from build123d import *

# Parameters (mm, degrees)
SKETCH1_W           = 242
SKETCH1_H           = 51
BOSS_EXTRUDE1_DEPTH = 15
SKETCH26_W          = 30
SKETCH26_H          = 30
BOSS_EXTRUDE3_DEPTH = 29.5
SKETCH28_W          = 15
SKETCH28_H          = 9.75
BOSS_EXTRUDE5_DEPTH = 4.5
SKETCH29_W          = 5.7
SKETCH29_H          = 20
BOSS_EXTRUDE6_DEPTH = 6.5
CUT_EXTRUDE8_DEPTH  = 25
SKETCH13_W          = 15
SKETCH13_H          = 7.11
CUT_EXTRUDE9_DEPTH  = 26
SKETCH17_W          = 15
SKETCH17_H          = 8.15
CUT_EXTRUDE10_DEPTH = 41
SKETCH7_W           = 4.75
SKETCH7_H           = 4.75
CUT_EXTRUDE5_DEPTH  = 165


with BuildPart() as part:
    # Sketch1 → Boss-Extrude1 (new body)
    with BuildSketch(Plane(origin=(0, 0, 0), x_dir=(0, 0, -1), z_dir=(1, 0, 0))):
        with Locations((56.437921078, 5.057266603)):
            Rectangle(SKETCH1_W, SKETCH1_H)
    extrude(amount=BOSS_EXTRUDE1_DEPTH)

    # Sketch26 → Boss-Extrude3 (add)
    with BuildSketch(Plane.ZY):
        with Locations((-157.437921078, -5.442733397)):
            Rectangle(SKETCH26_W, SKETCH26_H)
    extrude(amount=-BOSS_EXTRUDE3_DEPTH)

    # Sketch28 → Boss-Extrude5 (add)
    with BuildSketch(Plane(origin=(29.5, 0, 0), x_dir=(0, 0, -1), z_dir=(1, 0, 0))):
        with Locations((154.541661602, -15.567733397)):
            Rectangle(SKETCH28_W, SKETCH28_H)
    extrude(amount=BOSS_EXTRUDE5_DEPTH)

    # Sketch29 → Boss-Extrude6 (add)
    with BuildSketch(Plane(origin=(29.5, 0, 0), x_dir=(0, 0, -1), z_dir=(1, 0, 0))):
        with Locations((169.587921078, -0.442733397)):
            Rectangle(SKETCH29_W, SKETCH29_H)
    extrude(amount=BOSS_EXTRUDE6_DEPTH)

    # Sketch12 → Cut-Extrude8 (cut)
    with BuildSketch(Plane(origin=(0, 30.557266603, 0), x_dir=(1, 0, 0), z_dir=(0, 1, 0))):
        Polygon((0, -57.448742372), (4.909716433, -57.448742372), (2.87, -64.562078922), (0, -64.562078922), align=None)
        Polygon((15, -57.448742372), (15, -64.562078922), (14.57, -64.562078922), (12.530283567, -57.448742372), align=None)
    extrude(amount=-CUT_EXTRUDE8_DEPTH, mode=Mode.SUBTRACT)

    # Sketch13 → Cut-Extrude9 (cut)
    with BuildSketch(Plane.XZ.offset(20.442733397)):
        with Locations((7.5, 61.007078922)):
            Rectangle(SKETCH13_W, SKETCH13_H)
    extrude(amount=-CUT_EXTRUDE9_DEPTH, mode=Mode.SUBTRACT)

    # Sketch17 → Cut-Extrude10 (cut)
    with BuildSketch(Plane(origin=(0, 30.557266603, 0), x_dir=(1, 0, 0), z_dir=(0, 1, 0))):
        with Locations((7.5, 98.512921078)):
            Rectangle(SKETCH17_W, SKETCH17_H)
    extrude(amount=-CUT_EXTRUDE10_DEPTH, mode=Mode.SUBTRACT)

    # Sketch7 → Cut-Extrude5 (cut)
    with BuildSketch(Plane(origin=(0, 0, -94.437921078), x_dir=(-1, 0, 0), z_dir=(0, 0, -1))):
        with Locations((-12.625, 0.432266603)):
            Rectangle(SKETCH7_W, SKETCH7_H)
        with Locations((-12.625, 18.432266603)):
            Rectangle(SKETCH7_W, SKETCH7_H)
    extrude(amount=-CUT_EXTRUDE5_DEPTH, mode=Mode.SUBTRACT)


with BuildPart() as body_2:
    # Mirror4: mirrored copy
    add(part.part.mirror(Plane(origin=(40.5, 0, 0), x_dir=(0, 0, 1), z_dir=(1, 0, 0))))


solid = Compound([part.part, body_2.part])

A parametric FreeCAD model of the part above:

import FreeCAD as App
import Part
import Sketcher
from FreeCAD import Vector
Q = App.Units.Quantity


def add_polygon(sketch, points):
    """Adds a closed chain of lines whose ends are joined by coincident constraints."""
    first, n = sketch.GeometryCount, len(points)
    for a, b in zip(points, points[1:] + points[:1]):
        sketch.addGeometry(Part.LineSegment(App.Vector(*a, 0), App.Vector(*b, 0)), False)
    for i in range(n):
        sketch.addConstraint(Sketcher.Constraint("Coincident", first + i, 2, first + (i + 1) % n, 1))

doc = App.newDocument("Part")
body = doc.addObject("PartDesign::Body", "Body")

# Sketch on YZ plane
sketch1 = body.newObject("Sketcher::SketchObject", "Sketch")
sketch1.AttachmentSupport = (doc.getObject("YZ_Plane"), [""])
sketch1.MapMode = "FlatFace"
add_polygon(sketch1, [(31, 65), (-20, 65), (-20, -177), (31, -177)])  # lines 0-3
sketch1.addConstraint([
    Sketcher.Constraint("Horizontal", 0),
    Sketcher.Constraint("Vertical", 1),
    Sketcher.Constraint("Horizontal", 2),
    Sketcher.Constraint("Vertical", 3),
    Sketcher.Constraint("DistanceX", 0, 2, 0, 1, Q("51 mm")),
    Sketcher.Constraint("DistanceY", 1, 2, 1, 1, Q("242 mm")),
    Sketcher.Constraint("DistanceY", -1, 1, 0, 2, Q("64.562079 mm")),
    Sketcher.Constraint("DistanceX", 0, 2, -1, 1, Q("20.442733 mm")),
])
pad1 = body.newObject("PartDesign::Pad", "Pad")
pad1.Profile = sketch1
pad1.Length = 15

# Sketch on YZ plane
sketch2 = body.newObject("Sketcher::SketchObject", "Sketch001")
sketch2.AttachmentSupport = (doc.getObject("YZ_Plane"), [""])
sketch2.MapMode = "FlatFace"
add_polygon(sketch2, [(10, -172), (-20, -172), (-20, -142), (10, -142)])  # lines 0-3
sketch2.addConstraint([
    Sketcher.Constraint("Horizontal", 0),
    Sketcher.Constraint("Vertical", 1),
    Sketcher.Constraint("Horizontal", 2),
    Sketcher.Constraint("Vertical", 3),
    Sketcher.Constraint("Equal", 2, 1),
    Sketcher.Constraint("DistanceX", 0, 2, 0, 1, Q("30 mm")),
    Sketcher.Constraint("DistanceY", 0, 2, -1, 1, Q("172.437921 mm")),
    Sketcher.Constraint("DistanceX", 0, 2, -1, 1, Q("20.442733 mm")),
])
pad2 = body.newObject("PartDesign::Pad", "Pad001")
pad2.Profile = sketch2
pad2.Length = 29.5

# Sketch on YZ plane
sketch3 = body.newObject("Sketcher::SketchObject", "Sketch002")
sketch3.AttachmentSupport = (doc.getObject("YZ_Plane"), [""])
sketch3.MapMode = "FlatFace"
sketch3.AttachmentOffset = App.Placement(Vector(0, 0, 29.5), App.Rotation())
add_polygon(sketch3, [(-11, -147), (-20, -147), (-20, -162), (-11, -162)])  # lines 0-3
sketch3.addConstraint([
    Sketcher.Constraint("Horizontal", 0),
    Sketcher.Constraint("Vertical", 1),
    Sketcher.Constraint("Horizontal", 2),
    Sketcher.Constraint("Vertical", 3),
    Sketcher.Constraint("DistanceY", 1, 2, 1, 1, Q("15 mm")),
    Sketcher.Constraint("DistanceX", 0, 2, 0, 1, Q("9.75 mm")),
    Sketcher.Constraint("DistanceY", 0, 2, -1, 1, Q("147.041662 mm")),
    Sketcher.Constraint("DistanceX", 0, 2, -1, 1, Q("20.442733 mm")),
])
pad3 = body.newObject("PartDesign::Pad", "Pad002")
pad3.Profile = sketch3
pad3.Length = 4.5

# Sketch on YZ plane
sketch4 = body.newObject("Sketcher::SketchObject", "Sketch003")
sketch4.AttachmentSupport = (doc.getObject("YZ_Plane"), [""])
sketch4.MapMode = "FlatFace"
sketch4.AttachmentOffset = App.Placement(Vector(0, 0, 29.5), App.Rotation())
add_polygon(sketch4, [(10, -167), (-10, -167), (-10, -172), (10, -172)])  # lines 0-3
sketch4.addConstraint([
    Sketcher.Constraint("Horizontal", 0),
    Sketcher.Constraint("Vertical", 1),
    Sketcher.Constraint("Horizontal", 2),
    Sketcher.Constraint("Vertical", 3),
    Sketcher.Constraint("DistanceX", 0, 2, 0, 1, Q("20 mm")),
    Sketcher.Constraint("DistanceY", 1, 2, 1, 1, Q("5.7 mm")),
    Sketcher.Constraint("DistanceY", 0, 2, -1, 1, Q("166.737921 mm")),
    Sketcher.Constraint("DistanceX", 0, 2, -1, 1, Q("10.442733 mm")),
])
pad4 = body.newObject("PartDesign::Pad", "Pad003")
pad4.Profile = sketch4
pad4.Length = 6.5

# Sketch on XZ plane
sketch5 = body.newObject("Sketcher::SketchObject", "Sketch004")
sketch5.AttachmentSupport = (doc.getObject("XZ_Plane"), [""])
sketch5.MapMode = "FlatFace"
sketch5.AttachmentOffset = App.Placement(Vector(0, 0, -30.557267), App.Rotation())
add_polygon(sketch5, [(4.91, 57.45), (0, 57.45), (0, 64.56), (2.87, 64.56)])  # lines 0-3
add_polygon(sketch5, [(15, 64.56), (15, 57.45), (12.53, 57.45), (14.57, 64.56)])  # lines 4-7
sketch5.addConstraint([
    Sketcher.Constraint("Horizontal", 0),
    Sketcher.Constraint("Vertical", 1),
    Sketcher.Constraint("Horizontal", 2),
    Sketcher.Constraint("Vertical", 4),
    Sketcher.Constraint("Horizontal", 5),
    Sketcher.Constraint("Horizontal", 7),
    Sketcher.Constraint("PointOnObject", 0, 2, -2),
    Sketcher.Constraint("Horizontal", 3, 2, 4, 2),
    Sketcher.Constraint("Horizontal", 2, 2, 6, 2),
    Sketcher.Constraint("Equal", 3, 6),
    Sketcher.Constraint("Angle", 3, Q("-74 deg")),
    Sketcher.Constraint("DistanceX", -1, 1, 4, 2, Q("15 mm")),
    Sketcher.Constraint("Distance", 3, Q("7.4 mm")),
    Sketcher.Constraint("DistanceX", 2, 1, 2, 2, Q("2.87 mm")),
    Sketcher.Constraint("DistanceX", 7, 1, 7, 2, Q("0.43 mm")),
    Sketcher.Constraint("DistanceY", -1, 1, 1, 2, Q("64.562079 mm")),
])
pocket1 = body.newObject("PartDesign::Pocket", "Pocket")
pocket1.Profile = sketch5
pocket1.Length = 25
pocket1.Reversed = True

# Sketch on XZ plane
sketch6 = body.newObject("Sketcher::SketchObject", "Sketch005")
sketch6.AttachmentSupport = (doc.getObject("XZ_Plane"), [""])
sketch6.MapMode = "FlatFace"
sketch6.AttachmentOffset = App.Placement(Vector(0, 0, 20.442733), App.Rotation())
add_polygon(sketch6, [(0, 65), (0, 57), (15, 57), (15, 65)])  # lines 0-3
sketch6.addConstraint([
    Sketcher.Constraint("Vertical", 0),
    Sketcher.Constraint("Horizontal", 1),
    Sketcher.Constraint("Vertical", 2),
    Sketcher.Constraint("Horizontal", 3),
    Sketcher.Constraint("PointOnObject", 0, 2, -2),
    Sketcher.Constraint("DistanceX", 1, 1, 1, 2, Q("15 mm")),
    Sketcher.Constraint("DistanceY", 0, 2, 0, 1, Q("7.11 mm")),
    Sketcher.Constraint("DistanceY", -1, 1, 0, 2, Q("57.452079 mm")),
])
pocket2 = body.newObject("PartDesign::Pocket", "Pocket001")
pocket2.Profile = sketch6
pocket2.Length = 26

# Sketch on XZ plane
sketch7 = body.newObject("Sketcher::SketchObject", "Sketch006")
sketch7.AttachmentSupport = (doc.getObject("XZ_Plane"), [""])
sketch7.MapMode = "FlatFace"
sketch7.AttachmentOffset = App.Placement(Vector(0, 0, -30.557267), App.Rotation())
add_polygon(sketch7, [(0, -103), (0, -94), (15, -94), (15, -103)])  # lines 0-3
sketch7.addConstraint([
    Sketcher.Constraint("Vertical", 0),
    Sketcher.Constraint("Horizontal", 1),
    Sketcher.Constraint("Vertical", 2),
    Sketcher.Constraint("Horizontal", 3),
    Sketcher.Constraint("PointOnObject", 0, 2, -2),
    Sketcher.Constraint("DistanceX", 1, 1, 1, 2, Q("15 mm")),
    Sketcher.Constraint("DistanceY", 0, 1, 0, 2, Q("8.15 mm")),
    Sketcher.Constraint("DistanceY", 0, 2, -1, 1, Q("94.437921 mm")),
])
pocket3 = body.newObject("PartDesign::Pocket", "Pocket002")
pocket3.Profile = sketch7
pocket3.Length = 41
pocket3.Reversed = True

# Sketch on XY plane
sketch8 = body.newObject("Sketcher::SketchObject", "Sketch007")
sketch8.AttachmentSupport = (doc.getObject("XY_Plane"), [""])
sketch8.MapMode = "FlatFace"
sketch8.AttachmentOffset = App.Placement(Vector(0, 0, -94.437921), App.Rotation())
add_polygon(sketch8, [(15, 2.8), (15, -1.9), (10.2, -1.9), (10.2, 2.8)])  # lines 0-3
add_polygon(sketch8, [(15, 20.8), (15, 16.1), (10.2, 16.1), (10.2, 20.8)])  # lines 4-7
sketch8.addConstraint([
    Sketcher.Constraint("Vertical", 0),
    Sketcher.Constraint("Horizontal", 1),
    Sketcher.Constraint("Vertical", 2),
    Sketcher.Constraint("Horizontal", 3),
    Sketcher.Constraint("Vertical", 4),
    Sketcher.Constraint("Horizontal", 5),
    Sketcher.Constraint("Vertical", 6),
    Sketcher.Constraint("Horizontal", 7),
    Sketcher.Constraint("Vertical", 3, 2, 4, 2),
    Sketcher.Constraint("Vertical", 2, 2, 5, 2),
    Sketcher.Constraint("Equal", 7, 0),
    Sketcher.Constraint("Equal", 2, 4),
    Sketcher.Constraint("DistanceX", -1, 1, 0, 2, Q("15 mm")),
    Sketcher.Constraint("DistanceY", 0, 2, 4, 2, Q("18 mm")),
    Sketcher.Constraint("DistanceX", 1, 2, 1, 1, Q("4.75 mm")),
    Sketcher.Constraint("DistanceY", 0, 2, -1, 1, Q("1.942733 mm")),
])
pocket4 = body.newObject("PartDesign::Pocket", "Pocket003")
pocket4.Profile = sketch8
pocket4.Length = 165
pocket4.Reversed = True
body2 = doc.addObject("PartDesign::Body", "Body001")
doc.recompute()

mirroring = doc.addObject("Part::Mirroring", "Mirroring")
mirroring.Source = body
mirroring.Base = Vector(40.5, 0, 0)
mirroring.Normal = Vector(1, 0, 0)
body2.BaseFeature = mirroring
doc.recompute()
mirroring.Visibility = False

doc.recompute()
